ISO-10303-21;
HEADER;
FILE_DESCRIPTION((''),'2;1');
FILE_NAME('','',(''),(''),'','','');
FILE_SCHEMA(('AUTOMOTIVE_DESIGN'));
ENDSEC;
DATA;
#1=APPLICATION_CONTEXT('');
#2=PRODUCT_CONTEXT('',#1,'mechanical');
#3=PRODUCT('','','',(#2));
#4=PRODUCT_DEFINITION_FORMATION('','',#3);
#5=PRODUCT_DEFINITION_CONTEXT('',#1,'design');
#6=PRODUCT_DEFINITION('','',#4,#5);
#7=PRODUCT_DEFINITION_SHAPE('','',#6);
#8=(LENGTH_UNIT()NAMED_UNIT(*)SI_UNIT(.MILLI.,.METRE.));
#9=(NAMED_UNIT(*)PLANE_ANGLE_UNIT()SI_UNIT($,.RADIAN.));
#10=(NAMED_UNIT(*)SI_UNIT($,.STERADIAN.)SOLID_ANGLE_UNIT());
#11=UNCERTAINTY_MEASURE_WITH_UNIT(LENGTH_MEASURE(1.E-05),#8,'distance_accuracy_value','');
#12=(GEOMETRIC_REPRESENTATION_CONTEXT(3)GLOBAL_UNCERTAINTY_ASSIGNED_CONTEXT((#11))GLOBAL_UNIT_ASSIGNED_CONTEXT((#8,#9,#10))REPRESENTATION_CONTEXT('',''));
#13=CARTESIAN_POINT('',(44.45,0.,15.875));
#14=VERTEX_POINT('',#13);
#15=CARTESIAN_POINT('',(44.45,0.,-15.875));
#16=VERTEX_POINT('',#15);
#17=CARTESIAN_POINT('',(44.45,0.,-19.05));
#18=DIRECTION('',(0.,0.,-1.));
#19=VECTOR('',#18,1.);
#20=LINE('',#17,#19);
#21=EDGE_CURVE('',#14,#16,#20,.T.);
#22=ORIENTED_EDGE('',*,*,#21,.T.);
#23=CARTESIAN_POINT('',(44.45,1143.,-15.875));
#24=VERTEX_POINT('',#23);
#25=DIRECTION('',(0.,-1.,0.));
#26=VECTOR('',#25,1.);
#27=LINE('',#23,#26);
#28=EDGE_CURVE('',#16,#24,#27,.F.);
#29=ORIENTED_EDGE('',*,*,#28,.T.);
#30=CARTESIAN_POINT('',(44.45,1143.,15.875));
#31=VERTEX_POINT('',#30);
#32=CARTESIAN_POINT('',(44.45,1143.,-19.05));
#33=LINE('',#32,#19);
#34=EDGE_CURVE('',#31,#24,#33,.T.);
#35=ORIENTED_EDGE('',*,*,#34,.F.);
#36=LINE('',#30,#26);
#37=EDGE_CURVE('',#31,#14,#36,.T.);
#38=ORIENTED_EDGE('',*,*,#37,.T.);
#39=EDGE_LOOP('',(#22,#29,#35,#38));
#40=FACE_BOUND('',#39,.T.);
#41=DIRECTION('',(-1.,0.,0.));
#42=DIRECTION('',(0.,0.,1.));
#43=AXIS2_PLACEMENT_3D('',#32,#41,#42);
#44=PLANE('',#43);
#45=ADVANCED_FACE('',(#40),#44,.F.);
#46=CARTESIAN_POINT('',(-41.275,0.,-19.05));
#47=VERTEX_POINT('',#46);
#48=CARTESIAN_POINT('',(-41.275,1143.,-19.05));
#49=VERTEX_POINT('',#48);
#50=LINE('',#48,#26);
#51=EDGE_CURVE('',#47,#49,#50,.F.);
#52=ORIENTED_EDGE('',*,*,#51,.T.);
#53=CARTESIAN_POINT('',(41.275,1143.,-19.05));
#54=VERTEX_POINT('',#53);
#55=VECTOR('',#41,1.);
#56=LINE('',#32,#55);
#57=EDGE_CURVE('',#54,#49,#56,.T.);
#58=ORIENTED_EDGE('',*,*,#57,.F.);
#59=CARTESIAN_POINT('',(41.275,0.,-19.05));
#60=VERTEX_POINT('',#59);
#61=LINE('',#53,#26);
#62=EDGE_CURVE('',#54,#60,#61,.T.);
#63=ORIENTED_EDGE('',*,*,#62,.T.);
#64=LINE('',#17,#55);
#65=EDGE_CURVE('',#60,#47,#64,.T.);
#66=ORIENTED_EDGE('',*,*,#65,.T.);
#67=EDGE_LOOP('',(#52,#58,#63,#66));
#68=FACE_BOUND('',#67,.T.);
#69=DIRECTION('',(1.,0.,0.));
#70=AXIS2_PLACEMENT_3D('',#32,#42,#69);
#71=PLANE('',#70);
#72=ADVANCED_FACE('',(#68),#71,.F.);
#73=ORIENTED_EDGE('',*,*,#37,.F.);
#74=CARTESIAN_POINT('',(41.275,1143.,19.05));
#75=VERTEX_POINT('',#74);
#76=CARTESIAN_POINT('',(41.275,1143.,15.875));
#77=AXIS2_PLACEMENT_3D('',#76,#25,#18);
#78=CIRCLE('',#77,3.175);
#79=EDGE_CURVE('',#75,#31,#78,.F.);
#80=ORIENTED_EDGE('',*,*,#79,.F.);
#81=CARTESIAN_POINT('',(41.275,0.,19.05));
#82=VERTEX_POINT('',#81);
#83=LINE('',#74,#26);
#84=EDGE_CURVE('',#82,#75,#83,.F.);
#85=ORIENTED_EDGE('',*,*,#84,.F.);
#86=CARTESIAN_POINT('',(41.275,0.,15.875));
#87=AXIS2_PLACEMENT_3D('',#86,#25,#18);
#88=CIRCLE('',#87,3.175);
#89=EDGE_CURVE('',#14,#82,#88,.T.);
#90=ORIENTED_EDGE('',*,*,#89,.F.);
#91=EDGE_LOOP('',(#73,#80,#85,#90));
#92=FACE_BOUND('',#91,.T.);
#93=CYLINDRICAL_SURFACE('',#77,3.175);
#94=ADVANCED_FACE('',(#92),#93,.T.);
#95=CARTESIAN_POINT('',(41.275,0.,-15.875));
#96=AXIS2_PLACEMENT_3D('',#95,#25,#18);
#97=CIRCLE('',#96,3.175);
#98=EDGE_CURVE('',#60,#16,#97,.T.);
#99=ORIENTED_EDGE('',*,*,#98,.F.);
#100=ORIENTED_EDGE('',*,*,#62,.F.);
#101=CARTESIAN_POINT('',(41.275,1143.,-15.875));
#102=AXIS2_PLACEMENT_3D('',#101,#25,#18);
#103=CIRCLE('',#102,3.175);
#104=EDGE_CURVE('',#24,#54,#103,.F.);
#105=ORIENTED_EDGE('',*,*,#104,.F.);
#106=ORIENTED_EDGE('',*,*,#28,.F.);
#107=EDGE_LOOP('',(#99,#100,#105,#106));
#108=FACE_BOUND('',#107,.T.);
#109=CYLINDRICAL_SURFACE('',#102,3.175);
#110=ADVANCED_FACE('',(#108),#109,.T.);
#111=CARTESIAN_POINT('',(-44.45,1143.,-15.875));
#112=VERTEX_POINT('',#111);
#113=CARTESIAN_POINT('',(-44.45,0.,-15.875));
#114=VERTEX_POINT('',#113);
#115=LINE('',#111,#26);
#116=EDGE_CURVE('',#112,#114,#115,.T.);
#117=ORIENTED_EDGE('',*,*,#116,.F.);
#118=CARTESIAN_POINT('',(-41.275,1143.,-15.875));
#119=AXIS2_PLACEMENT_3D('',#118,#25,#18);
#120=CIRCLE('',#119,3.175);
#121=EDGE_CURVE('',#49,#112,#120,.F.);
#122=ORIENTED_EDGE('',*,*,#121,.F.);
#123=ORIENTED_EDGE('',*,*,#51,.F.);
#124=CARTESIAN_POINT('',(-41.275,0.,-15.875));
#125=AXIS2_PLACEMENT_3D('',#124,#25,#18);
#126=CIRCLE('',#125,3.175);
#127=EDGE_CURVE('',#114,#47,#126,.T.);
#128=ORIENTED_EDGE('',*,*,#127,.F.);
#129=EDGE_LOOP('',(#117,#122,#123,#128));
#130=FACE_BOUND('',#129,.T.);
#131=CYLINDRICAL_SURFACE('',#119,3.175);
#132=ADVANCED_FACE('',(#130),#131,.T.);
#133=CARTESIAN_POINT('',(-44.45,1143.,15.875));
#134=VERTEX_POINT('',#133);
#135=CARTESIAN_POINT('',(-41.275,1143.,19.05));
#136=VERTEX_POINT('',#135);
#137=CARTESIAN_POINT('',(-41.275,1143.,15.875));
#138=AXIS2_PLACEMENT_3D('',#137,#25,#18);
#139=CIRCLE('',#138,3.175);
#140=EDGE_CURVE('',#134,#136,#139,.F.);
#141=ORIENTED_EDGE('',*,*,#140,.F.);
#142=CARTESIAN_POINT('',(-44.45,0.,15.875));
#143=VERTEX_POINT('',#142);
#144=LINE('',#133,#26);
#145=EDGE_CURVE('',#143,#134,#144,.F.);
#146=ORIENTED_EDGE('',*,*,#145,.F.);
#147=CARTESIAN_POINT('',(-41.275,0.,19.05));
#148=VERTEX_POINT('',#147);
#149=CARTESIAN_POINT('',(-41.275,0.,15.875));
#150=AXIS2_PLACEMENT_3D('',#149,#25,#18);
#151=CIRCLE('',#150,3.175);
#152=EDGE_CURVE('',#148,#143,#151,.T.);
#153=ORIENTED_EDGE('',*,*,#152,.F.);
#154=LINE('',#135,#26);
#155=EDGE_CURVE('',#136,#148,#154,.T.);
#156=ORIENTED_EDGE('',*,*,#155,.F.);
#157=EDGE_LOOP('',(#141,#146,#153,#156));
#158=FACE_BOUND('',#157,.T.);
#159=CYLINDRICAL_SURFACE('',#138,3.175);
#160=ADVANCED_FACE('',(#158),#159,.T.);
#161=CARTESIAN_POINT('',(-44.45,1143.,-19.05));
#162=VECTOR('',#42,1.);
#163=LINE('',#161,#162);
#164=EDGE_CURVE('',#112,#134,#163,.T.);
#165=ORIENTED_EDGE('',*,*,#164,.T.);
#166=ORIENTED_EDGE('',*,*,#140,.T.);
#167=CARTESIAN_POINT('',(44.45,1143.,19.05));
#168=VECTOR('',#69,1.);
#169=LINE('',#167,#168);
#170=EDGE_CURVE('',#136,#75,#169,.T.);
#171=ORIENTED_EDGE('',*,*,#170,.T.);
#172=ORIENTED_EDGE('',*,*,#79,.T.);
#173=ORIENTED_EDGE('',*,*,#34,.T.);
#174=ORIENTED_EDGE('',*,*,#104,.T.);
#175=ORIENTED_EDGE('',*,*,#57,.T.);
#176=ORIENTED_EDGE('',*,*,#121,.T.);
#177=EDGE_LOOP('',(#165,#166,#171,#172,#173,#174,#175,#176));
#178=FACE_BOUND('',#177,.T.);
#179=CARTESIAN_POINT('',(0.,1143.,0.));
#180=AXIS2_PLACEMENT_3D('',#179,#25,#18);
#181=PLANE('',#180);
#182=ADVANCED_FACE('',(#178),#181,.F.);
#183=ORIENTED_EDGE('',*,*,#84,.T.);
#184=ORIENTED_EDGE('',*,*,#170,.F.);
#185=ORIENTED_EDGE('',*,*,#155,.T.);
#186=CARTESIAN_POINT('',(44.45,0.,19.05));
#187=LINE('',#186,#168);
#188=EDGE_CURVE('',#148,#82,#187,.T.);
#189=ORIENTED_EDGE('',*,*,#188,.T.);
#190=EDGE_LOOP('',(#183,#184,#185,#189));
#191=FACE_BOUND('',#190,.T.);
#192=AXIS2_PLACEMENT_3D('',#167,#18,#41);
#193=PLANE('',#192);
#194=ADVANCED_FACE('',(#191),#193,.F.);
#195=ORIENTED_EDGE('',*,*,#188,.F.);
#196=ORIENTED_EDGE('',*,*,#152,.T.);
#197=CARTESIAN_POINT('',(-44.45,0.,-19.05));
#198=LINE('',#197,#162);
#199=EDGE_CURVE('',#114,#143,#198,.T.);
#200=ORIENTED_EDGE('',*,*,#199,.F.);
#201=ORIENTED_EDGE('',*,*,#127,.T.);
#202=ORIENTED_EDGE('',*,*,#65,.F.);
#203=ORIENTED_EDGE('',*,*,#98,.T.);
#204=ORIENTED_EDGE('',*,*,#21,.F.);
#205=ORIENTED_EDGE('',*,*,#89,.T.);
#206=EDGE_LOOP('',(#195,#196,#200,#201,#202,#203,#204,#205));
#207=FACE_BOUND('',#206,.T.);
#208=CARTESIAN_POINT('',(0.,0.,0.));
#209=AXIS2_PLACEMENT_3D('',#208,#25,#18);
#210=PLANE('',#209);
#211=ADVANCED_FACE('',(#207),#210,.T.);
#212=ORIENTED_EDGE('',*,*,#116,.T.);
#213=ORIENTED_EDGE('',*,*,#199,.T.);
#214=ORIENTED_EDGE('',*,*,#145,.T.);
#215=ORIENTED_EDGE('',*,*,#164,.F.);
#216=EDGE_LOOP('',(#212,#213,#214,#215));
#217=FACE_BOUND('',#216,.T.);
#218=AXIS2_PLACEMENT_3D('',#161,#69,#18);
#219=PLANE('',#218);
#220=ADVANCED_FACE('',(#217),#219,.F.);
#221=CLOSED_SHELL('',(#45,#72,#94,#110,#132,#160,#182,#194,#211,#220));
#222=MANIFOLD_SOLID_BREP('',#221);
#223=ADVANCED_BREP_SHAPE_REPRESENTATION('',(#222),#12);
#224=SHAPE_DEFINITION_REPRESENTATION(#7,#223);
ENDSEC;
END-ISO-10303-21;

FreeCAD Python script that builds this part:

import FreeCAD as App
import Part
import Sketcher
Q = App.Units.Quantity


def edges_at(feature, points):
    """Names of the edges that pass closest to the given points."""
    edges = feature.Shape.Edges
    near = lambda p: min(range(len(edges)), key=lambda i: edges[i].distToShape(Part.Vertex(*p))[0])
    return sorted({f"Edge{near(p) + 1}" for p in points})

doc = App.newDocument("Part")
body = doc.addObject("PartDesign::Body", "Body")

# Sketch on XZ plane
sketch1 = body.newObject("Sketcher::SketchObject", "Sketch")
sketch1.AttachmentSupport = (doc.getObject("XZ_Plane"), [""])
sketch1.MapMode = "FlatFace"
sketch1.addGeometry(Part.LineSegment(App.Vector(-44.45, -19.05, 0), App.Vector(-44.45, 19.05, 0)), False)
sketch1.addGeometry(Part.LineSegment(App.Vector(-44.45, 19.05, 0), App.Vector(44.45, 19.05, 0)), False)
sketch1.addGeometry(Part.LineSegment(App.Vector(44.45, 19.05, 0), App.Vector(44.45, -19.05, 0)), False)
sketch1.addGeometry(Part.LineSegment(App.Vector(44.45, -19.05, 0), App.Vector(-44.45, -19.05, 0)), False)
sketch1.addConstraint(Sketcher.Constraint("Coincident", 0, 2, 1, 1))
sketch1.addConstraint(Sketcher.Constraint("Coincident", 1, 2, 2, 1))
sketch1.addConstraint(Sketcher.Constraint("Coincident", 2, 2, 3, 1))
sketch1.addConstraint(Sketcher.Constraint("Coincident", 3, 2, 0, 1))
sketch1.addConstraint(Sketcher.Constraint("Vertical", 0))
sketch1.addConstraint(Sketcher.Constraint("Horizontal", 1))
sketch1.addConstraint(Sketcher.Constraint("Vertical", 2))
sketch1.addConstraint(Sketcher.Constraint("Horizontal", 3))
sketch1.addConstraint(Sketcher.Constraint("Symmetric", 0, 2, 2, 2, -1, 1))
sketch1.addConstraint(Sketcher.Constraint("DistanceX", 1, 1, 1, 2, Q("3.5 in")))
sketch1.addConstraint(Sketcher.Constraint("DistanceY", 0, 1, 0, 2, Q("1.5 in")))
pad1 = body.newObject("PartDesign::Pad", "Pad")
pad1.Profile = sketch1
pad1.Length = Q("45 in")
pad1.Reversed = True
doc.recompute()

fillet = body.newObject("PartDesign::Fillet", "Fillet")
fillet.Base = (pad1, edges_at(pad1, [
    (-44.45, 571.5, -19.05),
    (44.45, 571.5, -19.05),
    (44.45, 571.5, 19.05),
    (-44.45, 571.5, 19.05),
]))
fillet.Radius = Q("0.125 in")

doc.recompute()
